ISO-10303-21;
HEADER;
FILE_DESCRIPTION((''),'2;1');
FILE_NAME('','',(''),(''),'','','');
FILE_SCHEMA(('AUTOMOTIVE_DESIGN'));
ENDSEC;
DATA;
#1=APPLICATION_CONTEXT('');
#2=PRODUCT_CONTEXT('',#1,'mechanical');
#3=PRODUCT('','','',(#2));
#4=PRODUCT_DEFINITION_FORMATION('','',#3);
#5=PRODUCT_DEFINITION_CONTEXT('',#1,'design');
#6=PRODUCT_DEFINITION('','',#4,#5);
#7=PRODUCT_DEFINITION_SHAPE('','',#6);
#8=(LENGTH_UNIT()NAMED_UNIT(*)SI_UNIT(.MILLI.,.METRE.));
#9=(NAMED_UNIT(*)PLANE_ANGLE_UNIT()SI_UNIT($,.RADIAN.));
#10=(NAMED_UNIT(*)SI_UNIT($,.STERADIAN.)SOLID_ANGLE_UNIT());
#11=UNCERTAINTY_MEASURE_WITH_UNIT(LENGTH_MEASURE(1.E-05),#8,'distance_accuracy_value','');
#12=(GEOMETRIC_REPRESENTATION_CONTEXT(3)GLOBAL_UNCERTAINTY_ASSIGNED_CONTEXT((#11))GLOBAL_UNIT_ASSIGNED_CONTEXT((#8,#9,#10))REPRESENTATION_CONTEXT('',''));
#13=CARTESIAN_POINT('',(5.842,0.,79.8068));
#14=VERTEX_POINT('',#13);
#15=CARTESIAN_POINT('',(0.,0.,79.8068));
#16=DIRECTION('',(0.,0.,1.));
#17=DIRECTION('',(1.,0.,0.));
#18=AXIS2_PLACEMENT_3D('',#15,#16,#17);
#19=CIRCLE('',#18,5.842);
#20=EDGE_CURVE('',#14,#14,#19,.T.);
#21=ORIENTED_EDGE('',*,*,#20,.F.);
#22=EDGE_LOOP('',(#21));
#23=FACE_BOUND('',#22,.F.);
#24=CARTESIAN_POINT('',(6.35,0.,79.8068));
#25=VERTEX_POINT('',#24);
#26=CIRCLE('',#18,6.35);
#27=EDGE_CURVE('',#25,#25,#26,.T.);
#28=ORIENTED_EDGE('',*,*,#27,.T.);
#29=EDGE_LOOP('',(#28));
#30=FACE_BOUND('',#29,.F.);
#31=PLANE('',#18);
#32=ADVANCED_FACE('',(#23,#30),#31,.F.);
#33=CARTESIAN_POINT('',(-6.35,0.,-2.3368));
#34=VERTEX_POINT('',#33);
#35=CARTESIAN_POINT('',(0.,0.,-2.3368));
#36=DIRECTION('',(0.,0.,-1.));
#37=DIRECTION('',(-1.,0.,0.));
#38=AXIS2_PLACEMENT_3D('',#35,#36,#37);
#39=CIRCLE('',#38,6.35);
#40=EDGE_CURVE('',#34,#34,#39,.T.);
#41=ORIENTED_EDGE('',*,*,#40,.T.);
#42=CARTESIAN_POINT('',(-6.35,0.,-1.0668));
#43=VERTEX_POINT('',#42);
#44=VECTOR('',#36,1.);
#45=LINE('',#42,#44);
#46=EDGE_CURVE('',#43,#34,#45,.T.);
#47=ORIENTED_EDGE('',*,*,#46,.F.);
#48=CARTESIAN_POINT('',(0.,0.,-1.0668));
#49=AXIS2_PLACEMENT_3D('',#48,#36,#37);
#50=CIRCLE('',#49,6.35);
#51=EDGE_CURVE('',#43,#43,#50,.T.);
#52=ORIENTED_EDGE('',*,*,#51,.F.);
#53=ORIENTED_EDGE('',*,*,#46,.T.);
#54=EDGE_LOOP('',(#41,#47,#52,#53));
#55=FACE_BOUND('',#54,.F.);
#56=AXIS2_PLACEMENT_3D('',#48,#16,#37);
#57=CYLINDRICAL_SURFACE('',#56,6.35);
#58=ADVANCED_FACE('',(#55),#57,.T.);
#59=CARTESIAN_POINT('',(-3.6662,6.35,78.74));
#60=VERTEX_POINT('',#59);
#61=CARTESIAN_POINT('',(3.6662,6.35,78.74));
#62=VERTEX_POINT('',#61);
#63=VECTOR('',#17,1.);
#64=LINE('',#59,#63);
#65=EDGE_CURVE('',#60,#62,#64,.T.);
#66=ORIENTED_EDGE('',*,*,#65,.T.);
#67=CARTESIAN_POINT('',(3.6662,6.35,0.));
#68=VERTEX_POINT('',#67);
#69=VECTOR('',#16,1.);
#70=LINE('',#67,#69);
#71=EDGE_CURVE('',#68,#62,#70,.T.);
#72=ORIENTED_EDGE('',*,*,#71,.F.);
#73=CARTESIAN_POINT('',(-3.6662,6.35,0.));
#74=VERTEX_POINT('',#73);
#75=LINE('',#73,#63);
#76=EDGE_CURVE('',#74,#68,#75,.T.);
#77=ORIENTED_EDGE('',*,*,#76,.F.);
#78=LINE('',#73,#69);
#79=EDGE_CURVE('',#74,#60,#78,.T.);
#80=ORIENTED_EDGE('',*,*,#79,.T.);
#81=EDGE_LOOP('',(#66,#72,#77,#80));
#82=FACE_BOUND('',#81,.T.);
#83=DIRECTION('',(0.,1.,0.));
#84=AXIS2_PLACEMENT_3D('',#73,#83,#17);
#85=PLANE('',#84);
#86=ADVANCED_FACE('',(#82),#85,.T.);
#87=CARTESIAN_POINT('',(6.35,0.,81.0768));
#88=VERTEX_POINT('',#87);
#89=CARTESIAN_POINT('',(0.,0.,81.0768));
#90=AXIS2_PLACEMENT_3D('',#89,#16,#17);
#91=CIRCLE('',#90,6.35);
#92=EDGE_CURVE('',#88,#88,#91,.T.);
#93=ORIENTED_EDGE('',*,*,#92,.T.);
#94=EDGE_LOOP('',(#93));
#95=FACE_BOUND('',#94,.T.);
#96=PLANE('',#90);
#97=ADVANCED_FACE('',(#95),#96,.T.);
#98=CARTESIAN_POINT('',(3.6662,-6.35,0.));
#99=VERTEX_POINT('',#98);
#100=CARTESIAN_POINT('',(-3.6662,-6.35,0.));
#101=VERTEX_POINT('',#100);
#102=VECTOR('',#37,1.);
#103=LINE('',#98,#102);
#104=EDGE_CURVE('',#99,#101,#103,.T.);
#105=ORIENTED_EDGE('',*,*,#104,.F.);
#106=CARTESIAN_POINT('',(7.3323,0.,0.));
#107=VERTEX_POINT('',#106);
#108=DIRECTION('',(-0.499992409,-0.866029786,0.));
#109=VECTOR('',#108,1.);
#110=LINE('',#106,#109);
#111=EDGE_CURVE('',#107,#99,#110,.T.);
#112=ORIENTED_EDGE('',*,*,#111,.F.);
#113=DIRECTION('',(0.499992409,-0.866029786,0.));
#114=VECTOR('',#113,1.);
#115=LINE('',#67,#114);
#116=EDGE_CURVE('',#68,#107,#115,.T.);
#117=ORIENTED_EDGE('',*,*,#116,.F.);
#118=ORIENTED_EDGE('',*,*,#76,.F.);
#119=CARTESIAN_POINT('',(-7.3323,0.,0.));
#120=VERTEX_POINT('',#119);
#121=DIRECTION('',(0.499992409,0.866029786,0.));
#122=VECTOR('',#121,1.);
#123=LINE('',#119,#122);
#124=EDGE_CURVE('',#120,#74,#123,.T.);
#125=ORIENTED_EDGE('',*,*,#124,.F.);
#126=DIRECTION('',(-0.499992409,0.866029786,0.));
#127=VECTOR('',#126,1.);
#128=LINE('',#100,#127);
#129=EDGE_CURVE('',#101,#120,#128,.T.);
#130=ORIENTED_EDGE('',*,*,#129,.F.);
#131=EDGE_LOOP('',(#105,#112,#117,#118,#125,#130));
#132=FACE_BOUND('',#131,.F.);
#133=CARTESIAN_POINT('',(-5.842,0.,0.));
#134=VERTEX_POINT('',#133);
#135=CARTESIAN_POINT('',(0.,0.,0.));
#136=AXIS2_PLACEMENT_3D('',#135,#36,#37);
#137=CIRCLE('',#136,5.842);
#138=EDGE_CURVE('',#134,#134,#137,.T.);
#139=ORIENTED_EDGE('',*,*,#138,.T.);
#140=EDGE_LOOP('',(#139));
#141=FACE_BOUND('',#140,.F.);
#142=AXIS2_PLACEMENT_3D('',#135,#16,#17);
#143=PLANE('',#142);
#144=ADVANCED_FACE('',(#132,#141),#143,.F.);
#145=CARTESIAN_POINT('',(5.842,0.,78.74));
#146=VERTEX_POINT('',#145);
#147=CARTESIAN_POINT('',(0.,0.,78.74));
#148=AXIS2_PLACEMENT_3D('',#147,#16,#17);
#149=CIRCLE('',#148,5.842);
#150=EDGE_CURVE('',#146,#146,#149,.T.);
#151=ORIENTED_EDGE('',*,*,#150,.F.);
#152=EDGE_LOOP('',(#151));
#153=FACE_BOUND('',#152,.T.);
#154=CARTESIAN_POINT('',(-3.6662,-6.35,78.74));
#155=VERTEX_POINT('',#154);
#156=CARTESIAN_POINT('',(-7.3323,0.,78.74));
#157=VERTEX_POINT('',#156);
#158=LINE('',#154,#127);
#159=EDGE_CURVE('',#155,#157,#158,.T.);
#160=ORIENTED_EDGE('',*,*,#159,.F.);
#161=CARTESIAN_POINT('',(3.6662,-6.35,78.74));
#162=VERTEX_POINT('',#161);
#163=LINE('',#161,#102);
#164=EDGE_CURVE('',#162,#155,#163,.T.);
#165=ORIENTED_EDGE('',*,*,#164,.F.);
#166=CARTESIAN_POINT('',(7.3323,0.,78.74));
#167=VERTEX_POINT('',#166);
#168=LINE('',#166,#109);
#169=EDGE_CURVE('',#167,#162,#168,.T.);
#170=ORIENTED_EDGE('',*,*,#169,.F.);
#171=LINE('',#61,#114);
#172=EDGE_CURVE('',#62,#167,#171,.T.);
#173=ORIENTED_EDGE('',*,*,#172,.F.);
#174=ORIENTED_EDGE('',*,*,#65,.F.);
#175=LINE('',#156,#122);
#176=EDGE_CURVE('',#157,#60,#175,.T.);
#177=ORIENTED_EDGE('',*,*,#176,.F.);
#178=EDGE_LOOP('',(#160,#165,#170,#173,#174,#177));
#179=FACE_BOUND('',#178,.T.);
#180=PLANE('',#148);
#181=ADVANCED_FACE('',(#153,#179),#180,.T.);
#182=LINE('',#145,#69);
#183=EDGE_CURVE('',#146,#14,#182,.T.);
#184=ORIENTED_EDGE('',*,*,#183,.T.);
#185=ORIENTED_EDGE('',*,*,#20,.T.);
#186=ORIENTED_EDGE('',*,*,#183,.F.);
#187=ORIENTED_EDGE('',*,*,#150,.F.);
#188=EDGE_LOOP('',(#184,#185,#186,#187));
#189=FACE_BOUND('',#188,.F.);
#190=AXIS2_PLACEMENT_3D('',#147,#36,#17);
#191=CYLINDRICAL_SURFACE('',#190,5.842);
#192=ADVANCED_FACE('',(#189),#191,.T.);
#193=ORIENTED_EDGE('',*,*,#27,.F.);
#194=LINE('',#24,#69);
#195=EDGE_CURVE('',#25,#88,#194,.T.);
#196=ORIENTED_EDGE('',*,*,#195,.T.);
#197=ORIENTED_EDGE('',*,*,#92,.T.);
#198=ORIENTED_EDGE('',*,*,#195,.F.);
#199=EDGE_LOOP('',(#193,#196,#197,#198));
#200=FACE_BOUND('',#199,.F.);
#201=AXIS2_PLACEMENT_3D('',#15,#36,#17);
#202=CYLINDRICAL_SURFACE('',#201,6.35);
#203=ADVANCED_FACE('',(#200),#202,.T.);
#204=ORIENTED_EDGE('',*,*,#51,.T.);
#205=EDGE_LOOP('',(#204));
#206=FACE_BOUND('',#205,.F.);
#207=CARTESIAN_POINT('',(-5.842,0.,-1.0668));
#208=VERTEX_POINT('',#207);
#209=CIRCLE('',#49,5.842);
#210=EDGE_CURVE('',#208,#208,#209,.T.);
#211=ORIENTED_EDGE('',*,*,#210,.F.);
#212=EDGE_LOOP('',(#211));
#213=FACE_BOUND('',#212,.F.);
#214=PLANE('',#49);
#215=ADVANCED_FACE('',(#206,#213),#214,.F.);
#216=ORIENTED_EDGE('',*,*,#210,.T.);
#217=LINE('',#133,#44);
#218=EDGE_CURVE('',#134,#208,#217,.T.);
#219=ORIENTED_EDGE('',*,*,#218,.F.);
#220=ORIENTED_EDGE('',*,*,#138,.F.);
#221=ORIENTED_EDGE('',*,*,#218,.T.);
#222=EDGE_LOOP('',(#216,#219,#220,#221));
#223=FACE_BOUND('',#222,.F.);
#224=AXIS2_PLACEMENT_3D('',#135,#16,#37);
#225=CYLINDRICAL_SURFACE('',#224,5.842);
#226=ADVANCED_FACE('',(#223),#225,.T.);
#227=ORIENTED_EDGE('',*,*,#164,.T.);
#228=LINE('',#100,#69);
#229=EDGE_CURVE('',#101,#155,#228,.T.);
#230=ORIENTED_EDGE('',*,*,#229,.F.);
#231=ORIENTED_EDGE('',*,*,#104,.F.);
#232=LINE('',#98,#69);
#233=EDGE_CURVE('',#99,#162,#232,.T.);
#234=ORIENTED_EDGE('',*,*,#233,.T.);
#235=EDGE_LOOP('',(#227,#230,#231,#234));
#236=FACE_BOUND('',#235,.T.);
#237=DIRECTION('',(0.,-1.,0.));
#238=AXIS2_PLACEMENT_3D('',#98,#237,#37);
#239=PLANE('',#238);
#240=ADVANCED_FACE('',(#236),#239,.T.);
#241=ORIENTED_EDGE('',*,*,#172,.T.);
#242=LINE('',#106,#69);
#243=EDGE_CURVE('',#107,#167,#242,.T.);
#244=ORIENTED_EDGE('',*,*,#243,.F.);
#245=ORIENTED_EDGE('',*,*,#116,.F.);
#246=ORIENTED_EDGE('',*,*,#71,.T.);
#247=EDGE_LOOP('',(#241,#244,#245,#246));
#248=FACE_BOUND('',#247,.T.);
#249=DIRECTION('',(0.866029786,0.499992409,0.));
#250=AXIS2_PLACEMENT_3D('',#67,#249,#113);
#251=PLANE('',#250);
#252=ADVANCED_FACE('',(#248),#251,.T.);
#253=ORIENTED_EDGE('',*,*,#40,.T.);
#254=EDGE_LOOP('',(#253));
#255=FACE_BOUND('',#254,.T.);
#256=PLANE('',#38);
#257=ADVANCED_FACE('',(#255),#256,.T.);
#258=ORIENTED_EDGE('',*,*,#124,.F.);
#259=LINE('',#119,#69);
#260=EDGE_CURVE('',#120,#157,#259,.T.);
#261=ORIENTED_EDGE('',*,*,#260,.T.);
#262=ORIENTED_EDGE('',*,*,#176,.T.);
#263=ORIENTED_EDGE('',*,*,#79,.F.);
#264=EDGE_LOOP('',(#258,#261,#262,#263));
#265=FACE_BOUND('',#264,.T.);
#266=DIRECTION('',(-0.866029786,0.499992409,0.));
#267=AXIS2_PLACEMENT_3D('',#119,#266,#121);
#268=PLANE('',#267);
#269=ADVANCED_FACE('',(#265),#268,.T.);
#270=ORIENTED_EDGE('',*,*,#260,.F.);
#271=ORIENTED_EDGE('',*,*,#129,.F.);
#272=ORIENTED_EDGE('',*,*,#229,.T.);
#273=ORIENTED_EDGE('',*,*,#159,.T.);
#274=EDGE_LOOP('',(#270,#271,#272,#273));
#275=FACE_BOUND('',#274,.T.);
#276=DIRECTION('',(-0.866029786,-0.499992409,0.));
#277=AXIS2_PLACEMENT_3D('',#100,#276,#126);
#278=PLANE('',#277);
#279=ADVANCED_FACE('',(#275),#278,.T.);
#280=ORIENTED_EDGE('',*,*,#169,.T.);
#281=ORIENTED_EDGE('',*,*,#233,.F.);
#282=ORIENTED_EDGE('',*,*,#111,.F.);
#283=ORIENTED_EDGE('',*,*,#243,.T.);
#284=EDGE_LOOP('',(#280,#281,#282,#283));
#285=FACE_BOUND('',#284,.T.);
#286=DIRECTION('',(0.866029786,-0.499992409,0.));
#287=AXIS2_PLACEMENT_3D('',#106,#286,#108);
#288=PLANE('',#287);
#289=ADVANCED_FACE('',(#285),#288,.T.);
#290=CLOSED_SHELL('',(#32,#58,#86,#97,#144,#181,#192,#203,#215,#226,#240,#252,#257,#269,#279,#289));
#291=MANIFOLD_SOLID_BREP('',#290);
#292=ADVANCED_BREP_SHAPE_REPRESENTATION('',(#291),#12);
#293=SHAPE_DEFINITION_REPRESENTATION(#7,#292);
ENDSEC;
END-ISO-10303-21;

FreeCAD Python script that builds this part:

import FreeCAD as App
import Part
import Sketcher
from FreeCAD import Vector
Q = App.Units.Quantity

doc = App.newDocument("Part")
body = doc.addObject("PartDesign::Body", "Body")

sketch1 = body.newObject("Sketcher::SketchObject", "Sketch")
sketch1.AttachmentSupport = (doc.getObject("XY_Plane"), [""])
sketch1.MapMode = "FlatFace"
sketch1.addGeometry([
    Part.LineSegment(Vector(4, -6, 0), Vector(7, 0, 0)),
    Part.LineSegment(Vector(7, 0, 0), Vector(4, 6, 0)),
    Part.LineSegment(Vector(4, 6, 0), Vector(-4, 6, 0)),
    Part.LineSegment(Vector(-4, 6, 0), Vector(-7, 0, 0)),
    Part.LineSegment(Vector(-7, 0, 0), Vector(-4, -6, 0)),
    Part.LineSegment(Vector(-4, -6, 0), Vector(4, -6, 0)),
], False)
sketch1.addConstraint([
    Sketcher.Constraint("Coincident", 0, 2, 1, 1),
    Sketcher.Constraint("Coincident", 1, 2, 2, 1),
    Sketcher.Constraint("Coincident", 2, 2, 3, 1),
    Sketcher.Constraint("Coincident", 3, 2, 4, 1),
    Sketcher.Constraint("Coincident", 4, 2, 5, 1),
    Sketcher.Constraint("Coincident", 5, 2, 0, 1),
    Sketcher.Constraint("Horizontal", 2),
    Sketcher.Constraint("Horizontal", 5),
    Sketcher.Constraint("Symmetric", 0, 2, 3, 2, -1, 1),
    Sketcher.Constraint("Symmetric", 1, 2, 4, 2, -1, 1),
    Sketcher.Constraint("PointOnObject", 0, 2, -1),
    Sketcher.Constraint("Parallel", 0, 3),
    Sketcher.Constraint("Vertical", 2, 2, 4, 2),
    Sketcher.Constraint("DistanceY", 4, 2, 2, 2, Q("0.5 in")),
    Sketcher.Constraint("Angle", 0, Q("60.0005 deg")),
    Sketcher.Constraint("DistanceX", 2, 2, 0, 2, Q("0.433 in")),
])
pad1 = body.newObject("PartDesign::Pad", "Pad")
pad1.Profile = sketch1
pad1.Length = Q("3.1 in")

sketch2 = body.newObject("Sketcher::SketchObject", "Sketch001")
sketch2.AttachmentSupport = (doc.getObject("XY_Plane"), [""])
sketch2.MapMode = "FlatFace"
sketch2.AttachmentOffset = App.Placement(Vector(0, 0, 3.1 * 25.4), App.Rotation())
sketch2.addGeometry(Part.Circle(Vector(0, 0, 0), Vector(0, 0, 1), 6), False)
sketch2.addConstraint([
    Sketcher.Constraint("Coincident", 0, 3, -1, 1),
    Sketcher.Constraint("Diameter", 0, Q("0.46 in")),
])
pad2 = body.newObject("PartDesign::Pad", "Pad001")
pad2.Profile = sketch2
pad2.Length = Q("0.042 in")

sketch3 = body.newObject("Sketcher::SketchObject", "Sketch002")
sketch3.AttachmentSupport = (doc.getObject("XY_Plane"), [""])
sketch3.MapMode = "FlatFace"
sketch3.AttachmentOffset = App.Placement(Vector(0, 0, 3.142 * 25.4), App.Rotation())
sketch3.addGeometry(Part.Circle(Vector(0, 0, 0), Vector(0, 0, 1), 6), False)
sketch3.addConstraint([
    Sketcher.Constraint("Coincident", 0, 3, -1, 1),
    Sketcher.Constraint("Diameter", 0, Q("0.5 in")),
])
pad3 = body.newObject("PartDesign::Pad", "Pad002")
pad3.Profile = sketch3
pad3.Length = Q("0.05 in")

sketch4 = body.newObject("Sketcher::SketchObject", "Sketch003")
sketch4.AttachmentSupport = (doc.getObject("XY_Plane"), [""])
sketch4.MapMode = "FlatFace"
sketch4.addGeometry(Part.Circle(Vector(0, 0, 0), Vector(0, 0, 1), 6), False)
sketch4.addConstraint([
    Sketcher.Constraint("Coincident", 0, 3, -1, 1),
    Sketcher.Constraint("Diameter", 0, Q("0.46 in")),
])
pad4 = body.newObject("PartDesign::Pad", "Pad003")
pad4.Profile = sketch4
pad4.Length = Q("0.042 in")
pad4.Reversed = True

sketch5 = body.newObject("Sketcher::SketchObject", "Sketch004")
sketch5.AttachmentSupport = (doc.getObject("XY_Plane"), [""])
sketch5.MapMode = "FlatFace"
sketch5.AttachmentOffset = App.Placement(Vector(0, 0, -0.042 * 25.4), App.Rotation())
sketch5.addGeometry(Part.Circle(Vector(0, 0, 0), Vector(0, 0, 1), 6), False)
sketch5.addConstraint([
    Sketcher.Constraint("Coincident", 0, 3, -1, 1),
    Sketcher.Constraint("Diameter", 0, Q("0.5 in")),
])
pad5 = body.newObject("PartDesign::Pad", "Pad004")
pad5.Profile = sketch5
pad5.Length = Q("0.05 in")
pad5.Reversed = True

doc.recompute()
